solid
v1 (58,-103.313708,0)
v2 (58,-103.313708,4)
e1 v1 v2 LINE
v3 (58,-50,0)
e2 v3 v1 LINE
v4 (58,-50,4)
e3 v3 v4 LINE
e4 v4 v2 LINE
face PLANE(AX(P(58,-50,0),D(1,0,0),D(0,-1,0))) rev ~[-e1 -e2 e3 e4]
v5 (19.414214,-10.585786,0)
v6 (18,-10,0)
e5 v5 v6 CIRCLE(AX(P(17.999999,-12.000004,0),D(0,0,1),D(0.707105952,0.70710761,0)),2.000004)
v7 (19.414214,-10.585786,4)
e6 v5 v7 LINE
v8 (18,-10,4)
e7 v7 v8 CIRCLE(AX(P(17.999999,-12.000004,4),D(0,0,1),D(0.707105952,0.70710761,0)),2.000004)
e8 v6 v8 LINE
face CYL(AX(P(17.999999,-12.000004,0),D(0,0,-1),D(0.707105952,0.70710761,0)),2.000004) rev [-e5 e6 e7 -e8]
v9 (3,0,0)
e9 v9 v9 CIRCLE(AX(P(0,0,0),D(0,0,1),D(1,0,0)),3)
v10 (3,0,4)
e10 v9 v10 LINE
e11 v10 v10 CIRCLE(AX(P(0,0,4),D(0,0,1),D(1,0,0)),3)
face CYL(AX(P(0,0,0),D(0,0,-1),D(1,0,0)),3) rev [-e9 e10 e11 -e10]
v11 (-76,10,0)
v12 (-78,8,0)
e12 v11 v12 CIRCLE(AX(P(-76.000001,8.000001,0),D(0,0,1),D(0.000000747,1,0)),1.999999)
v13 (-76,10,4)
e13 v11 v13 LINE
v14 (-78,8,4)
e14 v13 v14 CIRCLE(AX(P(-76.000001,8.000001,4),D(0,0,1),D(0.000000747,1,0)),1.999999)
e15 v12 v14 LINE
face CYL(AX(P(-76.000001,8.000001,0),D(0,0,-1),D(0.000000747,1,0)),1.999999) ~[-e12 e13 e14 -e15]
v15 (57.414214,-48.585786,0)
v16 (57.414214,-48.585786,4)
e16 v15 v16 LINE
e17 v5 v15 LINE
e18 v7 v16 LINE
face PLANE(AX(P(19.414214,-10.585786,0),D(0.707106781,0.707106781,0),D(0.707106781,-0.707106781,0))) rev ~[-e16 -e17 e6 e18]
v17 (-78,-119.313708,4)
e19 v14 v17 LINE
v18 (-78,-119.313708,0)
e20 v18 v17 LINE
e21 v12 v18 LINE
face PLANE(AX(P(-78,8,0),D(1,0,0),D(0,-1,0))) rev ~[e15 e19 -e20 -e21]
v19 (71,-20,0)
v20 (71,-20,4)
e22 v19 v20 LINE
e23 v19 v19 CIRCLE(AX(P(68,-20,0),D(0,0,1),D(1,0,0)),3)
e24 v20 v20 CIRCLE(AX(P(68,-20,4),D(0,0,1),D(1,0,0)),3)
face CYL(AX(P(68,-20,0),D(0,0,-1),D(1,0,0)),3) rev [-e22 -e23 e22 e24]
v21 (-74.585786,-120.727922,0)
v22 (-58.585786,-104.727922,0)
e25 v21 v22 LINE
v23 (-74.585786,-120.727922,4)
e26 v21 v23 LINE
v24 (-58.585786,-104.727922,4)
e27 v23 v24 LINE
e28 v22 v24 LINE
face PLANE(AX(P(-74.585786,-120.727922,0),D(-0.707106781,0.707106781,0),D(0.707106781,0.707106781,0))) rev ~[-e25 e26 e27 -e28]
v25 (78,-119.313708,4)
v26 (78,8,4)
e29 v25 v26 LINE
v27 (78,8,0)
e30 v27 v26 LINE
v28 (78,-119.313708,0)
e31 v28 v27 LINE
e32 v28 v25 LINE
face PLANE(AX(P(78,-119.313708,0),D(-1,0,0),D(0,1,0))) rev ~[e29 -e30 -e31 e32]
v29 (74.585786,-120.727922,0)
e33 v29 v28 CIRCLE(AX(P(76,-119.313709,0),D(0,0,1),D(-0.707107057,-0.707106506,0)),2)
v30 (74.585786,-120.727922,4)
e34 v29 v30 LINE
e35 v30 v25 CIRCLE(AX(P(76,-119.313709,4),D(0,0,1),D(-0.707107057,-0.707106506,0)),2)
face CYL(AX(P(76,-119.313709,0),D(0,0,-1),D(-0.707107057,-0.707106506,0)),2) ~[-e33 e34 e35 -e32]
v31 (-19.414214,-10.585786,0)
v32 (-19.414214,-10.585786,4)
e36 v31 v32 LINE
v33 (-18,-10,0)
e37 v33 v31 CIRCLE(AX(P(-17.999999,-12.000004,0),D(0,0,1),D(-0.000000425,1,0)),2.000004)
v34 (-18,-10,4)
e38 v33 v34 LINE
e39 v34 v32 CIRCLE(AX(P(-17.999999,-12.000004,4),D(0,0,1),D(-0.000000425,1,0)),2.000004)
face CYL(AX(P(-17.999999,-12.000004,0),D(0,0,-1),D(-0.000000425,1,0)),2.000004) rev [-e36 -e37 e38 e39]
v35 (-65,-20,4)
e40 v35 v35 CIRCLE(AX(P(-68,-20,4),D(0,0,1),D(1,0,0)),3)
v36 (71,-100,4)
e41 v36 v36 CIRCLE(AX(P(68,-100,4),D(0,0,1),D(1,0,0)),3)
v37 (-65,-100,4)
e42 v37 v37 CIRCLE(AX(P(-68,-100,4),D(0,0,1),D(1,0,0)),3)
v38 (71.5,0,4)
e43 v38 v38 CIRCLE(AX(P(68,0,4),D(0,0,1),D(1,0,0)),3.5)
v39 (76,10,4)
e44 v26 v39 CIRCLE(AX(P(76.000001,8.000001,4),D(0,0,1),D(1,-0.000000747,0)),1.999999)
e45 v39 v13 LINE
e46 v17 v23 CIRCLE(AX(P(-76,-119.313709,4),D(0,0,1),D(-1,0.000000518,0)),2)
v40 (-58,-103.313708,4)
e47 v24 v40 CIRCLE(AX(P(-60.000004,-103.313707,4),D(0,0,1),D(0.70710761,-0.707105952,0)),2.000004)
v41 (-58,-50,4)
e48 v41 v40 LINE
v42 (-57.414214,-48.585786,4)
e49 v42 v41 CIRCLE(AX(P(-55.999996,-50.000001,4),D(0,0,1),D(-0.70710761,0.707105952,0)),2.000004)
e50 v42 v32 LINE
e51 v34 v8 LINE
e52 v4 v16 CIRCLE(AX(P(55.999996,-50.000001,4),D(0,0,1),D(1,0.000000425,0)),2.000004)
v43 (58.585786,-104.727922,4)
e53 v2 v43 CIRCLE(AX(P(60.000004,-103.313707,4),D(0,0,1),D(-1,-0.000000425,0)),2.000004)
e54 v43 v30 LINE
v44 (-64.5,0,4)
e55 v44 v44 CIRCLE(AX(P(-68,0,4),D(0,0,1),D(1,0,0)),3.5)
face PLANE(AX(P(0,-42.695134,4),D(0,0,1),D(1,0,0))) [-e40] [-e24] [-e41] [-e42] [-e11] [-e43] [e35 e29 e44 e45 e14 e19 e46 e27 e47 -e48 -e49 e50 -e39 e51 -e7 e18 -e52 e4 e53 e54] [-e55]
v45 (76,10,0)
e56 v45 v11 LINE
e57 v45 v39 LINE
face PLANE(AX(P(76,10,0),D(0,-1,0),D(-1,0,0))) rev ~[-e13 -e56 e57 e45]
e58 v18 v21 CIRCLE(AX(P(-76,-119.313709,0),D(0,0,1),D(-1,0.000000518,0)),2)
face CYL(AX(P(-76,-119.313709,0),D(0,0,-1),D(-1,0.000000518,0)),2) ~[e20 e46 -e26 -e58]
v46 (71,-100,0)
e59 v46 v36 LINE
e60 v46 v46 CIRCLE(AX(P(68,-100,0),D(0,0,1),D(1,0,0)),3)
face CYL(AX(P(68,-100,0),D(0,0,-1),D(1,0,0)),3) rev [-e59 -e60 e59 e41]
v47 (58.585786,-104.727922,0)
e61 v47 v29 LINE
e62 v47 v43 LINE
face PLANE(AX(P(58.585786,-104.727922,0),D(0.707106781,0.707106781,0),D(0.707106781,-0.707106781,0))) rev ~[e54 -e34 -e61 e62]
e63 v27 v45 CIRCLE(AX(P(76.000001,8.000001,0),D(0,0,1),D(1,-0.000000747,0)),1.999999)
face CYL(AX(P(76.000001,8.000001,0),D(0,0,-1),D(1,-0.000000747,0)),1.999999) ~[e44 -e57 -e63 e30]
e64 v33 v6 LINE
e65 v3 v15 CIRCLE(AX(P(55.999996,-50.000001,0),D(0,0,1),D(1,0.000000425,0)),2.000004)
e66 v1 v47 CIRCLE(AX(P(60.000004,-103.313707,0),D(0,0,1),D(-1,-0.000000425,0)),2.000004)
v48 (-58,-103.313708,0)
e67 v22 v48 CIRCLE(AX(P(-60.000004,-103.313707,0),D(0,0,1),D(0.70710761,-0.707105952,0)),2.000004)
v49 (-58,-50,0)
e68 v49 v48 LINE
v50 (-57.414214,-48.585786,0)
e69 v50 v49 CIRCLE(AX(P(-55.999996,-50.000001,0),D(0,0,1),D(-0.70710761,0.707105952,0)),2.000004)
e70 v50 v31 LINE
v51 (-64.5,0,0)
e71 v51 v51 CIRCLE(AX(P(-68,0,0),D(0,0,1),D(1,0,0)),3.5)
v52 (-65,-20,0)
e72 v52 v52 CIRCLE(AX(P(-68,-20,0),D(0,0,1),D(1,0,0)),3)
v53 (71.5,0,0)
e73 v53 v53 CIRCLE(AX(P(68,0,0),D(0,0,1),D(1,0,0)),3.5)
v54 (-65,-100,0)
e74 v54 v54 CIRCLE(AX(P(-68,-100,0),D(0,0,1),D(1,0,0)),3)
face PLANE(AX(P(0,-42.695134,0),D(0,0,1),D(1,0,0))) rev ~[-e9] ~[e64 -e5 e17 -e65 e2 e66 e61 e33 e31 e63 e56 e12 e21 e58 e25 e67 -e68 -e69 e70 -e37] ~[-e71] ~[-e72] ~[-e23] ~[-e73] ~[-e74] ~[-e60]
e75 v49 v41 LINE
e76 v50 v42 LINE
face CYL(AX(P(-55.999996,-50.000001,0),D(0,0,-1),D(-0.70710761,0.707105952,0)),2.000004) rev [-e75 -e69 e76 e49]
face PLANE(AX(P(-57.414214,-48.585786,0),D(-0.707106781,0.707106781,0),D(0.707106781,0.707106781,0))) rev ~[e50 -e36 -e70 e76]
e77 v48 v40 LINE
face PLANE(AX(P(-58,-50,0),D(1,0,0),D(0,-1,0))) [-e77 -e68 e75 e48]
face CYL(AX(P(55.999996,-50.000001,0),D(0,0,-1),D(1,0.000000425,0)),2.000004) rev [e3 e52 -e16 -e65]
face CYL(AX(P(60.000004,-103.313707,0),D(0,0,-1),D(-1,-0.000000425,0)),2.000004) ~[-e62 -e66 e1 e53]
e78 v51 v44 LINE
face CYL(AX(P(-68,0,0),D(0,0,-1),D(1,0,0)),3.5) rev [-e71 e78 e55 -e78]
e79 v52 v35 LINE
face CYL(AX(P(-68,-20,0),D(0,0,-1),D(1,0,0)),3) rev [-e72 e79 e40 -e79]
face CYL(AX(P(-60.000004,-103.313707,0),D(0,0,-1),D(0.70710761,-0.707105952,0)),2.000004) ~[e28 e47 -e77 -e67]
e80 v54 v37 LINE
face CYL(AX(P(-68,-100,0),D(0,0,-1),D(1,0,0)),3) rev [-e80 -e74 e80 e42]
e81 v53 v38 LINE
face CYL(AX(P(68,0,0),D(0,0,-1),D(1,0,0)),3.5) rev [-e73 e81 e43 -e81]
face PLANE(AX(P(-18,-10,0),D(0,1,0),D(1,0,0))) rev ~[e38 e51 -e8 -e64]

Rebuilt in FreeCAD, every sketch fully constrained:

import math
import FreeCAD as App
import Part
import Sketcher
from FreeCAD import Vector

doc = App.newDocument("Part")
params = doc.addObject("Spreadsheet::Sheet", "Params")
for row, (alias, value) in enumerate([
    ("sketch1_diameter", "6 mm"),
    ("sketch1_diameter2", "7 mm"),
    ("sketch1_radius", "2 mm"),
    ("sketch1_width", "36 mm"),
    ("sketch1_width2", "152 mm"),
    ("pad1_length", "4 mm"),
], start=1):
    params.set(f"A{row}", alias)
    params.set(f"B{row}", "=" + value)
    params.setAlias(f"B{row}", alias)

body = doc.addObject("PartDesign::Body", "Body")

# Sketch on XY plane
sketch1 = doc.addObject("Sketcher::SketchObject", "Sketch")
body.addObject(sketch1)
sketch1.AttachmentSupport = (doc.XY_Plane, [""])
sketch1.MapMode = "FlatFace"
sketch1.addGeometry([
    Part.LineSegment(Vector(-78, 8, 0), Vector(-78, -119.313708, 0)),  # 0
    Part.ArcOfCircle(Part.Circle(Vector(-76, -119.313709, 0), Vector(0, 0, 1), 2), math.radians(179.99997), math.radians(315.000022)),  # 1
    Part.LineSegment(Vector(-74.585786, -120.727922, 0), Vector(-58.585786, -104.727922, 0)),  # 2
    Part.ArcOfCircle(Part.Circle(Vector(-60.000004, -103.313707, 0), Vector(0, 0, 1), 2.000004), math.radians(-44.999933), math.radians(-0.000024)),  # 3
    Part.LineSegment(Vector(-58, -103.313708, 0), Vector(-58, -50, 0)),  # 4
    Part.ArcOfCircle(Part.Circle(Vector(-55.999996, -50.000001, 0), Vector(0, 0, 1), 2.000004), math.radians(135.000067), math.radians(179.999976)),  # 5
    Part.LineSegment(Vector(-57.414214, -48.585786, 0), Vector(-19.414214, -10.585786, 0)),  # 6
    Part.ArcOfCircle(Part.Circle(Vector(-17.999999, -12.000004, 0), Vector(0, 0, 1), 2.000004), math.radians(90.000024), math.radians(134.999933)),  # 7
    Part.LineSegment(Vector(-18, -10, 0), Vector(18, -10, 0)),  # 8
    Part.ArcOfCircle(Part.Circle(Vector(17.999999, -12.000004, 0), Vector(0, 0, 1), 2.000004), math.radians(45.000067), math.radians(89.999976)),  # 9
    Part.LineSegment(Vector(19.414214, -10.585786, 0), Vector(57.414214, -48.585786, 0)),  # 10
    Part.ArcOfCircle(Part.Circle(Vector(55.999996, -50.000001, 0), Vector(0, 0, 1), 2.000004), math.radians(0.000024), math.radians(44.999933)),  # 11
    Part.LineSegment(Vector(58, -50, 0), Vector(58, -103.313708, 0)),  # 12
    Part.ArcOfCircle(Part.Circle(Vector(60.000004, -103.313707, 0), Vector(0, 0, 1), 2.000004), math.radians(-179.999976), math.radians(-135.000067)),  # 13
    Part.LineSegment(Vector(58.585786, -104.727922, 0), Vector(74.585786, -120.727922, 0)),  # 14
    Part.ArcOfCircle(Part.Circle(Vector(76, -119.313709, 0), Vector(0, 0, 1), 2), math.radians(-135.000022), math.radians(0.00003)),  # 15
    Part.LineSegment(Vector(78, -119.313708, 0), Vector(78, 8, 0)),  # 16
    Part.ArcOfCircle(Part.Circle(Vector(76.000001, 8.000001, 0), Vector(0, 0, 1), 1.999999), math.radians(-0.000043), math.radians(90.000043)),  # 17
    Part.LineSegment(Vector(76, 10, 0), Vector(-76, 10, 0)),  # 18
    Part.ArcOfCircle(Part.Circle(Vector(-76.000001, 8.000001, 0), Vector(0, 0, 1), 1.999999), math.radians(89.999957), math.radians(180.000043)),  # 19
    Part.Circle(Vector(-68, -100, 0), Vector(0, 0, 1), 3),  # 20
    Part.Circle(Vector(68, -100, 0), Vector(0, 0, 1), 3),  # 21
    Part.Circle(Vector(-68, -20, 0), Vector(0, 0, 1), 3),  # 22
    Part.Circle(Vector(-68, 0, 0), Vector(0, 0, 1), 3.5),  # 23
    Part.Circle(Vector(0, 0, 0), Vector(0, 0, 1), 3),  # 24
    Part.Circle(Vector(68, -20, 0), Vector(0, 0, 1), 3),  # 25
    Part.Circle(Vector(68, 0, 0), Vector(0, 0, 1), 3.5),  # 26
], False)
sketch1.addConstraint([
    Sketcher.Constraint("Tangent", 0, 2, 1, 1),
    Sketcher.Constraint("Tangent", 1, 2, 2, 1),
    Sketcher.Constraint("Tangent", 2, 2, 3, 1),
    Sketcher.Constraint("Tangent", 3, 2, 4, 1),
    Sketcher.Constraint("Tangent", 4, 2, 5, 2),
    Sketcher.Constraint("Tangent", 5, 1, 6, 1),
    Sketcher.Constraint("Tangent", 6, 2, 7, 2),
    Sketcher.Constraint("Tangent", 7, 1, 8, 1),
    Sketcher.Constraint("Tangent", 8, 2, 9, 2),
    Sketcher.Constraint("Tangent", 9, 1, 10, 1),
    Sketcher.Constraint("Tangent", 10, 2, 11, 2),
    Sketcher.Constraint("Tangent", 11, 1, 12, 1),
    Sketcher.Constraint("Tangent", 12, 2, 13, 1),
    Sketcher.Constraint("Tangent", 13, 2, 14, 1),
    Sketcher.Constraint("Tangent", 14, 2, 15, 1),
    Sketcher.Constraint("Tangent", 15, 2, 16, 1),
    Sketcher.Constraint("Tangent", 16, 2, 17, 1),
    Sketcher.Constraint("Tangent", 17, 2, 18, 1),
    Sketcher.Constraint("Tangent", 18, 2, 19, 1),
    Sketcher.Constraint("Tangent", 19, 2, 0, 1),
    Sketcher.Constraint("Vertical", 0),
    Sketcher.Constraint("Vertical", 4),
    Sketcher.Constraint("Horizontal", 8),
    Sketcher.Constraint("Vertical", 12),
    Sketcher.Constraint("Vertical", 16),
    Sketcher.Constraint("Horizontal", 18),
    Sketcher.Constraint("Coincident", 24, 3, -1, 1),
    Sketcher.Constraint("Equal", 3, 5),
    Sketcher.Constraint("Equal", 5, 7),
    Sketcher.Constraint("Equal", 7, 9),
    Sketcher.Constraint("Equal", 9, 11),
    Sketcher.Constraint("Equal", 11, 13),
    Sketcher.Constraint("Equal", 1, 15),
    Sketcher.Constraint("Equal", 15, 17),
    Sketcher.Constraint("Equal", 17, 19),
    Sketcher.Constraint("Equal", 20, 21),
    Sketcher.Constraint("Equal", 21, 22),
    Sketcher.Constraint("Equal", 22, 24),
    Sketcher.Constraint("Equal", 24, 25),
    Sketcher.Constraint("Equal", 23, 26),
    Sketcher.Constraint("Symmetric", 23, 3, 26, 3, -1, 1),
    Sketcher.Constraint("Symmetric", 5, 3, 11, 3, -2),
    Sketcher.Constraint("Symmetric", 1, 3, 15, 3, -2),
    Sketcher.Constraint("Symmetric", 20, 3, 21, 3, -2),
    Sketcher.Constraint("Symmetric", 22, 3, 25, 3, -2),
    Sketcher.Constraint("PointOnObject", 23, 3, -1),
    Sketcher.Constraint("Parallel", 2, 6),
    Sketcher.Constraint("Perpendicular", 6, 10),
    Sketcher.Constraint("Parallel", 10, 14),
    Sketcher.Constraint("Horizontal", 3, 3, 13, 3),
    Sketcher.Constraint("Vertical", 20, 3, 22, 3),
    Sketcher.Constraint("Vertical", 22, 3, 23, 3),
    Sketcher.Constraint("Diameter", 20, 6.0),
    Sketcher.Constraint("Diameter", 23, 7.0),
    Sketcher.Constraint("Radius", 1, 2.0),
    Sketcher.Constraint("DistanceX", 8, 1, 8, 2, 36.0),
    Sketcher.Constraint("DistanceX", 18, 2, 18, 1, 152.0),
    Sketcher.Constraint("DistanceY", 5, 3, -1, 1, 50.000001),
    Sketcher.Constraint("DistanceY", -1, 1, 17, 3, 8.000001),
    Sketcher.Constraint("DistanceX", 20, 3, -1, 1, 68.0),
    Sketcher.Constraint("DistanceY", 20, 3, -1, 1, 100.0),
    Sketcher.Constraint("DistanceY", 22, 3, -1, 1, 20.0),
    Sketcher.Constraint("DistanceX", 3, 2, -1, 1, 58.0),
    Sketcher.Constraint("DistanceY", 1, 3, 3, 3, 16.000002),
    Sketcher.Constraint("DistanceY", 0, 2, 0, 1, 127.313708),
])
sketch1.setExpression("Constraints[52]", "Params.sketch1_diameter")
sketch1.setExpression("Constraints[53]", "Params.sketch1_diameter2")
sketch1.setExpression("Constraints[54]", "Params.sketch1_radius")
sketch1.setExpression("Constraints[55]", "Params.sketch1_width")
sketch1.setExpression("Constraints[56]", "Params.sketch1_width2")
pad1 = doc.addObject("PartDesign::Pad", "Pad")
body.addObject(pad1)
pad1.Profile = sketch1
pad1.setExpression("Length", "Params.pad1_length")

doc.recompute()
